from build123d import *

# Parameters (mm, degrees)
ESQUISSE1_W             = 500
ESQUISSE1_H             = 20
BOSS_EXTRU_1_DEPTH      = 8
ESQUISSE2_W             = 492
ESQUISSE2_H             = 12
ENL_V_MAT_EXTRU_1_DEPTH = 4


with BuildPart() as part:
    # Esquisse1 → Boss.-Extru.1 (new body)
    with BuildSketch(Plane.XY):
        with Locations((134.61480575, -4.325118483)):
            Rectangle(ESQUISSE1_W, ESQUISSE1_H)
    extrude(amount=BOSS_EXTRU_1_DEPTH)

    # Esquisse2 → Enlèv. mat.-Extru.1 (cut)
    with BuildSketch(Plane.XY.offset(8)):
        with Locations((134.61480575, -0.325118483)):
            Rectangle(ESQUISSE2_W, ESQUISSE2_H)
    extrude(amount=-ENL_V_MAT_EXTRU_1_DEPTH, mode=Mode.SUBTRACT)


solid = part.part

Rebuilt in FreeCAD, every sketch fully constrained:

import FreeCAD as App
import Part
import Sketcher


def add_polygon(sketch, points):
    """Adds a closed chain of lines whose ends are joined by coincident constraints."""
    first, n = sketch.GeometryCount, len(points)
    for a, b in zip(points, points[1:] + points[:1]):
        sketch.addGeometry(Part.LineSegment(App.Vector(*a, 0), App.Vector(*b, 0)), False)
    for i in range(n):
        sketch.addConstraint(Sketcher.Constraint("Coincident", first + i, 2, first + (i + 1) % n, 1))

doc = App.newDocument("Part")
params = doc.addObject("Spreadsheet::Sheet", "Params")
for row, (alias, value) in enumerate([
    ("sketch1_width", "500 mm"),
    ("sketch1_height", "20 mm"),
    ("pad1_length", "8 mm"),
    ("sketch2_width", "492 mm"),
    ("sketch2_height", "12 mm"),
    ("pocket1_length", "4 mm"),
], start=1):
    params.set(f"A{row}", alias)
    params.set(f"B{row}", "=" + value)
    params.setAlias(f"B{row}", alias)

body = doc.addObject("PartDesign::Body", "Body")

# Sketch on XY plane
sketch1 = body.newObject("Sketcher::SketchObject", "Sketch")
sketch1.AttachmentSupport = (doc.getObject("XY_Plane"), [""])
sketch1.MapMode = "FlatFace"
add_polygon(sketch1, [(-115, 6), (-115, -14), (385, -14), (385, 6)])  # lines 0-3
sketch1.addConstraint(Sketcher.Constraint("Vertical", 0))
sketch1.addConstraint(Sketcher.Constraint("Horizontal", 1))
sketch1.addConstraint(Sketcher.Constraint("Vertical", 2))
sketch1.addConstraint(Sketcher.Constraint("Horizontal", 3))
sketch1.addConstraint(Sketcher.Constraint("DistanceX", 1, 1, 1, 2, 500.0))
sketch1.addConstraint(Sketcher.Constraint("DistanceY", 0, 2, 0, 1, 20.0))
sketch1.addConstraint(Sketcher.Constraint("DistanceY", 0, 2, -1, 1, 14.325118))
sketch1.addConstraint(Sketcher.Constraint("DistanceX", 0, 2, -1, 1, 115.385194))
sketch1.setExpression("Constraints[8]", "Params.sketch1_width")
sketch1.setExpression("Constraints[9]", "Params.sketch1_height")
pad1 = body.newObject("PartDesign::Pad", "Pad")
pad1.Profile = sketch1
pad1.setExpression("Length", "Params.pad1_length")

# Sketch on XY plane
sketch2 = body.newObject("Sketcher::SketchObject", "Sketch001")
sketch2.AttachmentSupport = (doc.getObject("XY_Plane"), [""])
sketch2.MapMode = "FlatFace"
sketch2.AttachmentOffset = App.Placement(App.Vector(0, 0, 8), App.Rotation())
add_polygon(sketch2, [(-111, 6), (-111, -6), (381, -6), (381, 6)])  # lines 0-3
sketch2.addConstraint(Sketcher.Constraint("Vertical", 0))
sketch2.addConstraint(Sketcher.Constraint("Horizontal", 1))
sketch2.addConstraint(Sketcher.Constraint("Vertical", 2))
sketch2.addConstraint(Sketcher.Constraint("Horizontal", 3))
sketch2.addConstraint(Sketcher.Constraint("DistanceX", 1, 1, 1, 2, 492.0))
sketch2.addConstraint(Sketcher.Constraint("DistanceY", 0, 2, 0, 1, 12.0))
sketch2.addConstraint(Sketcher.Constraint("DistanceY", 0, 2, -1, 1, 6.325118))
sketch2.addConstraint(Sketcher.Constraint("DistanceX", 0, 2, -1, 1, 111.385194))
sketch2.setExpression("Constraints[8]", "Params.sketch2_width")
sketch2.setExpression("Constraints[9]", "Params.sketch2_height")
pocket1 = body.newObject("PartDesign::Pocket", "Pocket")
pocket1.Profile = sketch2
pocket1.setExpression("Length", "Params.pocket1_length")

doc.recompute()
